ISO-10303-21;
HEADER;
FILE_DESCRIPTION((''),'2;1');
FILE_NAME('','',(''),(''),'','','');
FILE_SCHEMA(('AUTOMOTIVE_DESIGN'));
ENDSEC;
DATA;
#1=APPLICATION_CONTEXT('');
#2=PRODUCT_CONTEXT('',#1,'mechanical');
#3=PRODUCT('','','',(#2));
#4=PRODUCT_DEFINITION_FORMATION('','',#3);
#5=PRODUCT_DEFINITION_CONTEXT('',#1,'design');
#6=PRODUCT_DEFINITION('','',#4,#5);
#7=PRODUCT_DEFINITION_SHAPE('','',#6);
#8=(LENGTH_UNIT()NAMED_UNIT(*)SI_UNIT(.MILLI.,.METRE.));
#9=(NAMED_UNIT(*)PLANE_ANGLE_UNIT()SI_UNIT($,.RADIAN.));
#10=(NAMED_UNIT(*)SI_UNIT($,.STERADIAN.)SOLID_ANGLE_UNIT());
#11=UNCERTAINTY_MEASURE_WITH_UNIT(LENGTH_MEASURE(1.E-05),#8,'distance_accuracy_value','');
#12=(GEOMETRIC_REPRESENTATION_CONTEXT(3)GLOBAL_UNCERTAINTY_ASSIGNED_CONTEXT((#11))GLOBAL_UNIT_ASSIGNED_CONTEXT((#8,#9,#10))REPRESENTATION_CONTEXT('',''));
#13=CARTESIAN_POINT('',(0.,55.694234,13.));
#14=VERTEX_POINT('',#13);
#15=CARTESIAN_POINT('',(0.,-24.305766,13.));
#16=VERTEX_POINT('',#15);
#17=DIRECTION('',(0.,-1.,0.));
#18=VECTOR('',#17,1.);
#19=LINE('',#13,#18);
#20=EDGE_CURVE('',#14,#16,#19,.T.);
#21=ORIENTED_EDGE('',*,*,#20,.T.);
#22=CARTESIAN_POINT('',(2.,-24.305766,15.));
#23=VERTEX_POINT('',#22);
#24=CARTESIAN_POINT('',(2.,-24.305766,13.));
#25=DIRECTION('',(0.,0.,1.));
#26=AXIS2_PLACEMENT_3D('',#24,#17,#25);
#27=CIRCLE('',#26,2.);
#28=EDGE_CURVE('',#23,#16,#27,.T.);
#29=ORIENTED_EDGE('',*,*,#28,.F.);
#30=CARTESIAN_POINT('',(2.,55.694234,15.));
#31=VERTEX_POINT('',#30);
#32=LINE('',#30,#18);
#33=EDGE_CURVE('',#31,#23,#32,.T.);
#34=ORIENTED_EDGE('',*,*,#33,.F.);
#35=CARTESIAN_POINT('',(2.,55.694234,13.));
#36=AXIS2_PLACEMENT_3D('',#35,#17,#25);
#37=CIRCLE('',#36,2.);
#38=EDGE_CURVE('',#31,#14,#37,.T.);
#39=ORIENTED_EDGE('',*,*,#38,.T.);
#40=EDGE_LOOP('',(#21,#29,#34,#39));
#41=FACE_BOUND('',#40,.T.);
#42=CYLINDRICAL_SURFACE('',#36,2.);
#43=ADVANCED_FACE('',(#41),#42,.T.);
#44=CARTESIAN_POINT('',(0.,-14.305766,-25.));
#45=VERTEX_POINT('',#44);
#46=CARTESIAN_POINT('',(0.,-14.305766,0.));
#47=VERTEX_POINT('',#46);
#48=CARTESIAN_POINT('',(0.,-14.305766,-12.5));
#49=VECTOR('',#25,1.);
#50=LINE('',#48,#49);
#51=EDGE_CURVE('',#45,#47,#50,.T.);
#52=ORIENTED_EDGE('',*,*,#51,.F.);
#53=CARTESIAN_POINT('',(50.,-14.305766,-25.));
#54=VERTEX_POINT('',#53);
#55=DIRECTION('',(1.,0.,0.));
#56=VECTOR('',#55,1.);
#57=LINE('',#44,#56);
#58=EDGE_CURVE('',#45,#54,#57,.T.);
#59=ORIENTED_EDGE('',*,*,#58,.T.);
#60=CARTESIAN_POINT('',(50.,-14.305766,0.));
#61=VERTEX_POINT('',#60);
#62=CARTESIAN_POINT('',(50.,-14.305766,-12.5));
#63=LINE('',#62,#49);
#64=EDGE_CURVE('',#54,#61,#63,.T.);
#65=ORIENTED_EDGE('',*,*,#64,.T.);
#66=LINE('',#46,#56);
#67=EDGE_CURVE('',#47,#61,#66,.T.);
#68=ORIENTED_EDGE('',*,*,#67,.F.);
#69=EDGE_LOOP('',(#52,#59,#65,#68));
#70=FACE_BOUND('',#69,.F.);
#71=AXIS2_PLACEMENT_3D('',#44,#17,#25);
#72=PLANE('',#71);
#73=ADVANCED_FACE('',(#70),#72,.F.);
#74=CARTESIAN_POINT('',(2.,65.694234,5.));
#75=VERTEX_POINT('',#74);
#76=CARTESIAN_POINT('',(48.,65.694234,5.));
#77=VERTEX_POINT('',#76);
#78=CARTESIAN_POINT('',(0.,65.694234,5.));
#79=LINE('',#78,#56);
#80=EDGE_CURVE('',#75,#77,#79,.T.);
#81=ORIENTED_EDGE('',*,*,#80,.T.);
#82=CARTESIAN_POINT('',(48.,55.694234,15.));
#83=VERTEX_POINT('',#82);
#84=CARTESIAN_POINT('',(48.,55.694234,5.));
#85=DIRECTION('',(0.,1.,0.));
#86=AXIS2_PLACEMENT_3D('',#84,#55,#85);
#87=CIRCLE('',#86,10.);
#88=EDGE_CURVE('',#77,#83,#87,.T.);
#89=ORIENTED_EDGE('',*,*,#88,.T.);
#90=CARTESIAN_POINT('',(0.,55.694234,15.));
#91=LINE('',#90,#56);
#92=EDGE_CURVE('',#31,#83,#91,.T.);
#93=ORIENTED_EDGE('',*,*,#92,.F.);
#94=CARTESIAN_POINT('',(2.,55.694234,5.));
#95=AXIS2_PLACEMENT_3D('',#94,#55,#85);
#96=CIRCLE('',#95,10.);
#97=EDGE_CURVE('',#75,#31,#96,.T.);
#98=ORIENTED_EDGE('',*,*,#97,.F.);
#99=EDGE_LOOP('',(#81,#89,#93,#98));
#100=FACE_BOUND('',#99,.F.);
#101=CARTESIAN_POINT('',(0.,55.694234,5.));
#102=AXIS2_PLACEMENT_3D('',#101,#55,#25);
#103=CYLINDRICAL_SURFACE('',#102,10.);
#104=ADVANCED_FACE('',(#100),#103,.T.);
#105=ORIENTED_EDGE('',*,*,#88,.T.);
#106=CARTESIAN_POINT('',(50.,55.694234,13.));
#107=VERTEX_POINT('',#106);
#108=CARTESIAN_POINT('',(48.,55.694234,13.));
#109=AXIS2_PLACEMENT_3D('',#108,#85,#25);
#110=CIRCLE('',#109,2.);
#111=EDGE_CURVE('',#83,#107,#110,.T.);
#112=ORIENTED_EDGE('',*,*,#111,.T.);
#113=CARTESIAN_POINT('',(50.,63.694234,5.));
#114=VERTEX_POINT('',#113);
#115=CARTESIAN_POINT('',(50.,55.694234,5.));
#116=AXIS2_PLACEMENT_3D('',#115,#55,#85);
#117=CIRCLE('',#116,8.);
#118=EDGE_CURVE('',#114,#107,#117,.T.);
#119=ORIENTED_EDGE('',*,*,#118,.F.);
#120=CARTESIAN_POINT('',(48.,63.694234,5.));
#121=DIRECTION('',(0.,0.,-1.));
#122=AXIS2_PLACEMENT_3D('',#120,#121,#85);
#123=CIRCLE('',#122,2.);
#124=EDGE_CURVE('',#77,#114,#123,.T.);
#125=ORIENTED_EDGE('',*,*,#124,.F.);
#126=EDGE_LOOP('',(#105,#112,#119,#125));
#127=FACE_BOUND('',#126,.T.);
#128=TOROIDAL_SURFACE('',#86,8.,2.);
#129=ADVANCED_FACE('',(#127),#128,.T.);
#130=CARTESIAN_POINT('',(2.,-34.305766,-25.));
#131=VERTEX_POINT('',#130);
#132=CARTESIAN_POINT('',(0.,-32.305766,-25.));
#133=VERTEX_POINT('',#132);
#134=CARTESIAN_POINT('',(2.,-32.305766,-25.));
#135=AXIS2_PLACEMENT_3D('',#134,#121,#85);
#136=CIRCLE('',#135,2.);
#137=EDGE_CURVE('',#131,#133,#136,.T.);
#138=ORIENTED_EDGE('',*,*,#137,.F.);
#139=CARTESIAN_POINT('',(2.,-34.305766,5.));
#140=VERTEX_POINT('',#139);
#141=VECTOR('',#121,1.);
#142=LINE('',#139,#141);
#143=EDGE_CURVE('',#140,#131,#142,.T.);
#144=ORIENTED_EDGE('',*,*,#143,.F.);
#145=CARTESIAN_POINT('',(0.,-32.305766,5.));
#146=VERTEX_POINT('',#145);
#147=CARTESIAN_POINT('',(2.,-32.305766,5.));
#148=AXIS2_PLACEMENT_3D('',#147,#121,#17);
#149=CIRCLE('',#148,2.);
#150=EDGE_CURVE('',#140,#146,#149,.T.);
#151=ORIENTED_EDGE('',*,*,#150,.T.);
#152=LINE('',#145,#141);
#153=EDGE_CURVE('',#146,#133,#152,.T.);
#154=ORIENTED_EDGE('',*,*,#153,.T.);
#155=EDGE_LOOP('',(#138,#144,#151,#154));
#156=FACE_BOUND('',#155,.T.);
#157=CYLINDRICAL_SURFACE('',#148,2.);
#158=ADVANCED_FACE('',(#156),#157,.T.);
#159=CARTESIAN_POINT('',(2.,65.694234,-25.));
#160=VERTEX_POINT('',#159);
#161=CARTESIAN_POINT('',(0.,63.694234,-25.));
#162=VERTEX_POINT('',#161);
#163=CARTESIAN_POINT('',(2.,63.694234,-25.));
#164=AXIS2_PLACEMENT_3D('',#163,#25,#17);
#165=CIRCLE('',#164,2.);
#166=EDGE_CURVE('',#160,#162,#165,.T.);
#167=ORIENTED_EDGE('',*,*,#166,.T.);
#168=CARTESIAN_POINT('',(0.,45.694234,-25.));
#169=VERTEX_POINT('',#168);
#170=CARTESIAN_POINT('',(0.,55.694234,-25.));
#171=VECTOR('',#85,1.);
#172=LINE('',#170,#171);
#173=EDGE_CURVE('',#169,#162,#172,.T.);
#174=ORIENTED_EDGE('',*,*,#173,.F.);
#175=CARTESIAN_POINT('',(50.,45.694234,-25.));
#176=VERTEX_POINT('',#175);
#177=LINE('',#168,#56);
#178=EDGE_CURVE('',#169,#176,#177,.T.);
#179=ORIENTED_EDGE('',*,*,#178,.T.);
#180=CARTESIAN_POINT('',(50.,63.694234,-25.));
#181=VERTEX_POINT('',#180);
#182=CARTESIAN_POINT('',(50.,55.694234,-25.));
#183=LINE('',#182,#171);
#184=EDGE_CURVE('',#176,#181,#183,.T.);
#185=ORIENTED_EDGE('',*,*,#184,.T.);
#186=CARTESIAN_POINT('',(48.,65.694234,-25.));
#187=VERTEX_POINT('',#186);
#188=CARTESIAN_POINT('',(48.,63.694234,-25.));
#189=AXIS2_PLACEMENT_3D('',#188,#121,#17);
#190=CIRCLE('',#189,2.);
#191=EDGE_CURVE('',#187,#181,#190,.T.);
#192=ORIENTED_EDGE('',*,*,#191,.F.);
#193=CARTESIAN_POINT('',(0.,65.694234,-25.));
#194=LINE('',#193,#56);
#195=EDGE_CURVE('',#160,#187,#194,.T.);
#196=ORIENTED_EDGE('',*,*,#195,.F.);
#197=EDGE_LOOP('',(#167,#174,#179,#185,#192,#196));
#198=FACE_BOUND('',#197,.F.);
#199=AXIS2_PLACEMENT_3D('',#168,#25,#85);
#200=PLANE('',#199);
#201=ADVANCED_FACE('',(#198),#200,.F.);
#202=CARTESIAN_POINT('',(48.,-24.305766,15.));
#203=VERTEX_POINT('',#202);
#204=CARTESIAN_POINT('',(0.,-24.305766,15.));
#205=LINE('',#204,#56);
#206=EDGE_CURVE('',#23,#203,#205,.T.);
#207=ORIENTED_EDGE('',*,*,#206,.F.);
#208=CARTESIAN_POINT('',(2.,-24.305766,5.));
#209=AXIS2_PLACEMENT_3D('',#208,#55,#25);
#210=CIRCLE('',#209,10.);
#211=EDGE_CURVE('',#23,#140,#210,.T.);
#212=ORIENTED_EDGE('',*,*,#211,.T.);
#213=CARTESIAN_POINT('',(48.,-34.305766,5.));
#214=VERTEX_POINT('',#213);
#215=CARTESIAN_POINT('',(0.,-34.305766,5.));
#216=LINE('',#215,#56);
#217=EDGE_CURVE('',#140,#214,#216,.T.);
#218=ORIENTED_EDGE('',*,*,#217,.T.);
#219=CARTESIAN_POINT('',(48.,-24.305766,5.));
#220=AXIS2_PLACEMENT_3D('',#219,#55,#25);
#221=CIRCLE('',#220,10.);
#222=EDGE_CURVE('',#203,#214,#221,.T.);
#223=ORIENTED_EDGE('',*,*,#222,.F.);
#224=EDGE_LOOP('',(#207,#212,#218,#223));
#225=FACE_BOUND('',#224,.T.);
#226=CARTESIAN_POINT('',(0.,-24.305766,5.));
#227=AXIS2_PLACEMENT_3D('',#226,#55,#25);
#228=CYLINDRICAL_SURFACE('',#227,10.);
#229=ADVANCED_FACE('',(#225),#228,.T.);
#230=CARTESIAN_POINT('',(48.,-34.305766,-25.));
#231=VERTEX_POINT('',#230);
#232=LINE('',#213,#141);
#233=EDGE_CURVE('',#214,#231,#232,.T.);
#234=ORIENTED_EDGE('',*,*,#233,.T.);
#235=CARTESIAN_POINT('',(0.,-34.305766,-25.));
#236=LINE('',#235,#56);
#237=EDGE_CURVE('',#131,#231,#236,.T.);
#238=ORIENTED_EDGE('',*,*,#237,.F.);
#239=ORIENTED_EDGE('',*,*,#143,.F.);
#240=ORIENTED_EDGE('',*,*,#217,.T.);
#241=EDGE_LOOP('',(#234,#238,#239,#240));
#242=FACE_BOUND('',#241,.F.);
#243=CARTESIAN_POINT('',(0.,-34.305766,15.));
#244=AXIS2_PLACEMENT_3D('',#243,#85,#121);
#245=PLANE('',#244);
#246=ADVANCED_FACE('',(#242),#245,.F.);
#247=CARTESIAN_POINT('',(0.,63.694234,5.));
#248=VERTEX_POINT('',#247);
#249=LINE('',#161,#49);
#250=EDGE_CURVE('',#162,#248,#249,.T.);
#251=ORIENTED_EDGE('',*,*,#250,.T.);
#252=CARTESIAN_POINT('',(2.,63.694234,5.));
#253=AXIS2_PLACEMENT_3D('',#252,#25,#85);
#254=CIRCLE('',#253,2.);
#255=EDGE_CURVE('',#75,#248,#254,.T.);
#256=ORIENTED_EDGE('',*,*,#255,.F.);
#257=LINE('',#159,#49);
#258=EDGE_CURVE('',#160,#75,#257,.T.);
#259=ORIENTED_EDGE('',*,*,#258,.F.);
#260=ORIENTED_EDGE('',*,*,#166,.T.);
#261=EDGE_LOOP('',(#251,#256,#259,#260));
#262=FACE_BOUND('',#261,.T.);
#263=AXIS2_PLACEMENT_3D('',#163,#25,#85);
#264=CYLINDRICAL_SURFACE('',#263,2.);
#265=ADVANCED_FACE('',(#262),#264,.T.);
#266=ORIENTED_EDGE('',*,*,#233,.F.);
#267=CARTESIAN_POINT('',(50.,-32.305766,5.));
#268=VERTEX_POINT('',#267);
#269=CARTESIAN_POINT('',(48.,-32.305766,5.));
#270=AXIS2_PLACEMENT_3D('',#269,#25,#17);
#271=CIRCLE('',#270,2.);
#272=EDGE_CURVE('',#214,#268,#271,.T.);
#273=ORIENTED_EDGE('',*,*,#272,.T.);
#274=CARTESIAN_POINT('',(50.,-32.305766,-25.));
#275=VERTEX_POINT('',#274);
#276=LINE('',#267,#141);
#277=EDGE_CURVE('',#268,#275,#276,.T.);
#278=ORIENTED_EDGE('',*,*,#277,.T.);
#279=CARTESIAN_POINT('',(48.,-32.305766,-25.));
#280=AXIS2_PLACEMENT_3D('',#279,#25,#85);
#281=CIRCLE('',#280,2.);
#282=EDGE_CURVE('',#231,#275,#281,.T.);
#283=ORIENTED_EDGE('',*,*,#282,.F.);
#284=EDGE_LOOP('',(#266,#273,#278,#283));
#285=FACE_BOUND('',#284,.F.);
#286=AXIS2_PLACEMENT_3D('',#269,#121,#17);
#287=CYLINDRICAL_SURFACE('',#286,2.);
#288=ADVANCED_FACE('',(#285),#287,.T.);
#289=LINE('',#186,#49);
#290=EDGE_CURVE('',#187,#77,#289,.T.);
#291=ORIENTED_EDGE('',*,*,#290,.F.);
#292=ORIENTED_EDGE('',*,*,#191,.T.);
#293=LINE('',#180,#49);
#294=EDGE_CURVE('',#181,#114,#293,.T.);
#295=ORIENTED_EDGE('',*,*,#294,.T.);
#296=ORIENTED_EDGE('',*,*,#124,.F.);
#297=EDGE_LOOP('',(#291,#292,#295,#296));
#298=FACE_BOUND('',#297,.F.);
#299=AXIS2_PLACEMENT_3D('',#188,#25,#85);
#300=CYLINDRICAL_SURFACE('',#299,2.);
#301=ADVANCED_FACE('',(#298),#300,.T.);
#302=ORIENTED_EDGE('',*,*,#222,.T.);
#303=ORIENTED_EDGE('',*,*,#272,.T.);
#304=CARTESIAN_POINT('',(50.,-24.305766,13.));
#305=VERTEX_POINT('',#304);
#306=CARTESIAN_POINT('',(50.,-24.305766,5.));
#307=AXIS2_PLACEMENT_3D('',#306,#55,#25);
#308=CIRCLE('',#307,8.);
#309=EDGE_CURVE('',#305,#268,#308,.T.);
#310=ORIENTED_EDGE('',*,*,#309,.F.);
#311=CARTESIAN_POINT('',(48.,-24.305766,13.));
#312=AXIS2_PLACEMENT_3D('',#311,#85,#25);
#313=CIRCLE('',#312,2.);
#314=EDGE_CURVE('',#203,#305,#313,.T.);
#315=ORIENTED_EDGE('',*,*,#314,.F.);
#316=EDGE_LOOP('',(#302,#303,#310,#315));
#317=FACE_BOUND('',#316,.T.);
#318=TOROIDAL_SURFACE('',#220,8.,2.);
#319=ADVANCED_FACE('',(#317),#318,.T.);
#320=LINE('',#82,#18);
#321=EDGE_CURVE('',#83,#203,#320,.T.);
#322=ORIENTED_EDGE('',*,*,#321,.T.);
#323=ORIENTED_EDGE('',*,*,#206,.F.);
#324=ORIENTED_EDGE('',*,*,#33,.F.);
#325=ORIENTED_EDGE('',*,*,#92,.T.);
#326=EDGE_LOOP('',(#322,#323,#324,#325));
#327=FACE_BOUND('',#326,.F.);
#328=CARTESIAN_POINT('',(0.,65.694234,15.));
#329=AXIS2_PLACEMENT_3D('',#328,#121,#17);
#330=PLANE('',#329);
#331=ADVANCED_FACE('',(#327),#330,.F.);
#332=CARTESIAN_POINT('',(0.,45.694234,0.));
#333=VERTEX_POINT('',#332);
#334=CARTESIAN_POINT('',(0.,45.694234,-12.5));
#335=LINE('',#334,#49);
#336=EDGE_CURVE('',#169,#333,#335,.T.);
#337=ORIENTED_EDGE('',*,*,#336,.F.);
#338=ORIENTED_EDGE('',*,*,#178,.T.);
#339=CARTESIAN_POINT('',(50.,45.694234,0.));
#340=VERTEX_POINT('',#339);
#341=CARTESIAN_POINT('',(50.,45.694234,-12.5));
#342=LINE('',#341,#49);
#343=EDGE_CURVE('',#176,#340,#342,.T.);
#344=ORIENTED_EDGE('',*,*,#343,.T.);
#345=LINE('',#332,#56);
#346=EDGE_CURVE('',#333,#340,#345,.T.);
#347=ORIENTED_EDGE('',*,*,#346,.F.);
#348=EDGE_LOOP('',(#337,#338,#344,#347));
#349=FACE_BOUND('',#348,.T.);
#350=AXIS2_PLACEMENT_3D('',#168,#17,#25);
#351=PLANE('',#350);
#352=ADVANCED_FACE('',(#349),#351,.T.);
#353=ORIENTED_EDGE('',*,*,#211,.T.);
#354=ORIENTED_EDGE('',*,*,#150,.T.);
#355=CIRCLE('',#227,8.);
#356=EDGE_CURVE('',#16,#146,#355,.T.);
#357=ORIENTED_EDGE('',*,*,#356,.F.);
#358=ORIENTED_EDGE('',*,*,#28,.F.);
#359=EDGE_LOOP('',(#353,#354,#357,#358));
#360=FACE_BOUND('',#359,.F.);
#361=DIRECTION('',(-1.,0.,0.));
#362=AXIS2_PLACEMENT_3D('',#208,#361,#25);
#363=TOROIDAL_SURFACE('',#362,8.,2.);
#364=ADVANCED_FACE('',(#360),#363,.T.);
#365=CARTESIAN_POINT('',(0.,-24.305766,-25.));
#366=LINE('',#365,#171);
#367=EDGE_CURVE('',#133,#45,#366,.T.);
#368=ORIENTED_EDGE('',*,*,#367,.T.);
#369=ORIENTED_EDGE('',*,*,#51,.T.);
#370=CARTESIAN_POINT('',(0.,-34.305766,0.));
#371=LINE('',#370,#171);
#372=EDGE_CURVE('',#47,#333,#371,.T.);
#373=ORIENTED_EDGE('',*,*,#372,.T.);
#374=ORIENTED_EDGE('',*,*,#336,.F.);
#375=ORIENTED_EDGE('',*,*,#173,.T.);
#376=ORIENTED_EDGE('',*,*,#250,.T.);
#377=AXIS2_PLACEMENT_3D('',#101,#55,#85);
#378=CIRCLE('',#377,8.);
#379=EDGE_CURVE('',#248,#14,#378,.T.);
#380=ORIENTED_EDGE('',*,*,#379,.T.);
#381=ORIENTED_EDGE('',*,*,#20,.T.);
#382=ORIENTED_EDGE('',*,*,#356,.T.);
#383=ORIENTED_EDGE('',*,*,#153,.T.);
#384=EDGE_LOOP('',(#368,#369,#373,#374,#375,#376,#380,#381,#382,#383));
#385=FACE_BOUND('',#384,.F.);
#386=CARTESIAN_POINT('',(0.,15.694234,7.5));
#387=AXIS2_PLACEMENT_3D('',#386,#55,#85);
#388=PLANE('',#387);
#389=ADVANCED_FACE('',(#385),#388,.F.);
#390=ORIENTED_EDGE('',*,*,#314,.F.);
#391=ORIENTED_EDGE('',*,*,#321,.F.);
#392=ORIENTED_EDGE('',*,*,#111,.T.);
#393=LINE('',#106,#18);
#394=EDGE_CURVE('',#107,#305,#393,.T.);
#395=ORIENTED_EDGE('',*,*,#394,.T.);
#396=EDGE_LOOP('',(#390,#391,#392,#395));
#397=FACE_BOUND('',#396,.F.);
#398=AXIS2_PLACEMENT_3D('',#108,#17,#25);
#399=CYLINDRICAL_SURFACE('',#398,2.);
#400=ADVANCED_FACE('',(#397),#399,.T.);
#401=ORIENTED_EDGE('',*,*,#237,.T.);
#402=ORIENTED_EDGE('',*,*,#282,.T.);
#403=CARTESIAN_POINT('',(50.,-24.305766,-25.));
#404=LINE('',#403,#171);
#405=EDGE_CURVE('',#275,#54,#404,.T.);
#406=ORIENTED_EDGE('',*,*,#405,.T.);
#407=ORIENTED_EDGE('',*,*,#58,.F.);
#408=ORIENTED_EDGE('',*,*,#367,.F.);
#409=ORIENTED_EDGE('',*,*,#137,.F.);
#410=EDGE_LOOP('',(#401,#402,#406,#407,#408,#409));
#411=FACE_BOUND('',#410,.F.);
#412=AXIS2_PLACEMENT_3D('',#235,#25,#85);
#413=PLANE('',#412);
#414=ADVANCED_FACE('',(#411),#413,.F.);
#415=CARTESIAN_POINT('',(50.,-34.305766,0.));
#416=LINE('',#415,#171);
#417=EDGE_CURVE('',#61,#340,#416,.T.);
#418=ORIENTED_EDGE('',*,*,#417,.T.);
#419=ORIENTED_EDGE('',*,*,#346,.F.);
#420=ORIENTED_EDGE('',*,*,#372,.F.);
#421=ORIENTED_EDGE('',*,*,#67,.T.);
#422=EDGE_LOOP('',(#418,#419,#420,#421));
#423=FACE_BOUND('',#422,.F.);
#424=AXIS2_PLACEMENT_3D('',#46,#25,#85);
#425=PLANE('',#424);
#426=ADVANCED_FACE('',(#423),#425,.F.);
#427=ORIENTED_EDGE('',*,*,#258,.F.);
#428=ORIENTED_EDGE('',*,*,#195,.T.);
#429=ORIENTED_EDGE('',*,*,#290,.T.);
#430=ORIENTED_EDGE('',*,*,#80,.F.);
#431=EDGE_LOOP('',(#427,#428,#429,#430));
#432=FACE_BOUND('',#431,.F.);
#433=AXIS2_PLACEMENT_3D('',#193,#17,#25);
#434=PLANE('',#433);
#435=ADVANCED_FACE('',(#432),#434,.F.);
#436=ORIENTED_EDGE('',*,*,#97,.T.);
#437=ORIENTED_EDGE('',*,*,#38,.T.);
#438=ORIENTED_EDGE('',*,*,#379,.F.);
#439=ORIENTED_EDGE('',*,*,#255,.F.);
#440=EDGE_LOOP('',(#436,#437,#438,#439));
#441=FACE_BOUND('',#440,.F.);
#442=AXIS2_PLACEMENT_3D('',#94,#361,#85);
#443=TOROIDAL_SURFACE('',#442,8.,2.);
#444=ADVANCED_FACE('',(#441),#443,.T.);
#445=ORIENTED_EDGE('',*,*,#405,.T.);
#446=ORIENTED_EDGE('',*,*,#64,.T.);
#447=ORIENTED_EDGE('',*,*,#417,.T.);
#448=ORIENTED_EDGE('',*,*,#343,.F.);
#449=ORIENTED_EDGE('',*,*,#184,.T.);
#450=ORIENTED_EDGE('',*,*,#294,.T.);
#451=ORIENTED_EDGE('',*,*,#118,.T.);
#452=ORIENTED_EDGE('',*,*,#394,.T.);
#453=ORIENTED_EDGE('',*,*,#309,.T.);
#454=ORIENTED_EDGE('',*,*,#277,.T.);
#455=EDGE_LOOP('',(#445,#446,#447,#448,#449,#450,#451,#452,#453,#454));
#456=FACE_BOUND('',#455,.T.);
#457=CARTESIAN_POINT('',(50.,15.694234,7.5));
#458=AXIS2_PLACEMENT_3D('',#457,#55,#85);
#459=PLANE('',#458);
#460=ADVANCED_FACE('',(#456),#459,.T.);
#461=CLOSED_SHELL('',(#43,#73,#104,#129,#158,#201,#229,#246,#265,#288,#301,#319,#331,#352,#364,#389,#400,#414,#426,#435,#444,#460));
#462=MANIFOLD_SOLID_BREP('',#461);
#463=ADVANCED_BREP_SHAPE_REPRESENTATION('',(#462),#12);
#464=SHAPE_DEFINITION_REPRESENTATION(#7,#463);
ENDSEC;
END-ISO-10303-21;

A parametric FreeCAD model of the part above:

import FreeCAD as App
import Part
import Sketcher

V = App.Vector
Q = App.Units.Quantity


def edges_at(feature, points):
    """Names of the edges that pass closest to the given points."""
    edges = feature.Shape.Edges
    near = lambda p: min(range(len(edges)), key=lambda i: edges[i].distToShape(Part.Vertex(*p))[0])
    return sorted({f"Edge{near(p) + 1}" for p in points})

doc = App.newDocument("Part")
body = doc.addObject("PartDesign::Body", "Body")

# Sketch on YZ plane
sketch1 = body.newObject("Sketcher::SketchObject", "Sketch")
sketch1.AttachmentSupport = (doc.getObject("YZ_Plane"), [""])
sketch1.MapMode = "FlatFace"
sketch1.addGeometry([
    Part.LineSegment(V(66, 15, 0), V(-34, 15, 0)),  # 0
    Part.LineSegment(V(-34, 15, 0), V(-34, -25, 0)),  # 1
    Part.LineSegment(V(-34, -25, 0), V(-14, -25, 0)),  # 2
    Part.LineSegment(V(-14, -25, 0), V(-14, 0, 0)),  # 3
    Part.LineSegment(V(-14, 0, 0), V(46, 0, 0)),  # 4
    Part.LineSegment(V(46, 0, 0), V(46, -25, 0)),  # 5
    Part.LineSegment(V(46, -25, 0), V(66, -25, 0)),  # 6
    Part.LineSegment(V(66, -25, 0), V(66, 15, 0)),  # 7
], False)
sketch1.addConstraint([
    Sketcher.Constraint("Coincident", 0, 2, 1, 1),
    Sketcher.Constraint("Coincident", 1, 2, 2, 1),
    Sketcher.Constraint("Coincident", 2, 2, 3, 1),
    Sketcher.Constraint("Coincident", 3, 2, 4, 1),
    Sketcher.Constraint("Coincident", 4, 2, 5, 1),
    Sketcher.Constraint("Coincident", 5, 2, 6, 1),
    Sketcher.Constraint("Coincident", 6, 2, 7, 1),
    Sketcher.Constraint("Coincident", 7, 2, 0, 1),
    Sketcher.Constraint("Horizontal", 0),
    Sketcher.Constraint("Vertical", 1),
    Sketcher.Constraint("Horizontal", 2),
    Sketcher.Constraint("Vertical", 3),
    Sketcher.Constraint("Horizontal", 4),
    Sketcher.Constraint("Vertical", 5),
    Sketcher.Constraint("Horizontal", 6),
    Sketcher.Constraint("Vertical", 7),
    Sketcher.Constraint("PointOnObject", 3, 2, -1),
    Sketcher.Constraint("Horizontal", 2, 2, 5, 2),
    Sketcher.Constraint("Equal", 2, 6),
    Sketcher.Constraint("DistanceX", 0, 2, 0, 1, Q("100 mm")),
    Sketcher.Constraint("DistanceX", 2, 1, 2, 2, Q("20 mm")),
    Sketcher.Constraint("DistanceY", 1, 2, 1, 1, Q("40 mm")),
    Sketcher.Constraint("DistanceY", 3, 1, 3, 2, Q("25 mm")),
    Sketcher.Constraint("DistanceX", 0, 2, -1, 1, Q("34.305766 mm")),
])
pad1 = body.newObject("PartDesign::Pad", "Pad")
pad1.Profile = sketch1
pad1.Length = 50
doc.recompute()

fillet = body.newObject("PartDesign::Fillet", "Fillet")
fillet.Base = (pad1, edges_at(pad1, [(25, -34.306, 15), (25, 65.694, 15)]))
fillet.Radius = 10
doc.recompute()

fillet2 = body.newObject("PartDesign::Fillet", "Fillet001")
fillet2.Base = (fillet, edges_at(fillet, [(50, 15.694, 15), (0, 15.694, 15)]))
fillet2.Radius = 2

doc.recompute()
